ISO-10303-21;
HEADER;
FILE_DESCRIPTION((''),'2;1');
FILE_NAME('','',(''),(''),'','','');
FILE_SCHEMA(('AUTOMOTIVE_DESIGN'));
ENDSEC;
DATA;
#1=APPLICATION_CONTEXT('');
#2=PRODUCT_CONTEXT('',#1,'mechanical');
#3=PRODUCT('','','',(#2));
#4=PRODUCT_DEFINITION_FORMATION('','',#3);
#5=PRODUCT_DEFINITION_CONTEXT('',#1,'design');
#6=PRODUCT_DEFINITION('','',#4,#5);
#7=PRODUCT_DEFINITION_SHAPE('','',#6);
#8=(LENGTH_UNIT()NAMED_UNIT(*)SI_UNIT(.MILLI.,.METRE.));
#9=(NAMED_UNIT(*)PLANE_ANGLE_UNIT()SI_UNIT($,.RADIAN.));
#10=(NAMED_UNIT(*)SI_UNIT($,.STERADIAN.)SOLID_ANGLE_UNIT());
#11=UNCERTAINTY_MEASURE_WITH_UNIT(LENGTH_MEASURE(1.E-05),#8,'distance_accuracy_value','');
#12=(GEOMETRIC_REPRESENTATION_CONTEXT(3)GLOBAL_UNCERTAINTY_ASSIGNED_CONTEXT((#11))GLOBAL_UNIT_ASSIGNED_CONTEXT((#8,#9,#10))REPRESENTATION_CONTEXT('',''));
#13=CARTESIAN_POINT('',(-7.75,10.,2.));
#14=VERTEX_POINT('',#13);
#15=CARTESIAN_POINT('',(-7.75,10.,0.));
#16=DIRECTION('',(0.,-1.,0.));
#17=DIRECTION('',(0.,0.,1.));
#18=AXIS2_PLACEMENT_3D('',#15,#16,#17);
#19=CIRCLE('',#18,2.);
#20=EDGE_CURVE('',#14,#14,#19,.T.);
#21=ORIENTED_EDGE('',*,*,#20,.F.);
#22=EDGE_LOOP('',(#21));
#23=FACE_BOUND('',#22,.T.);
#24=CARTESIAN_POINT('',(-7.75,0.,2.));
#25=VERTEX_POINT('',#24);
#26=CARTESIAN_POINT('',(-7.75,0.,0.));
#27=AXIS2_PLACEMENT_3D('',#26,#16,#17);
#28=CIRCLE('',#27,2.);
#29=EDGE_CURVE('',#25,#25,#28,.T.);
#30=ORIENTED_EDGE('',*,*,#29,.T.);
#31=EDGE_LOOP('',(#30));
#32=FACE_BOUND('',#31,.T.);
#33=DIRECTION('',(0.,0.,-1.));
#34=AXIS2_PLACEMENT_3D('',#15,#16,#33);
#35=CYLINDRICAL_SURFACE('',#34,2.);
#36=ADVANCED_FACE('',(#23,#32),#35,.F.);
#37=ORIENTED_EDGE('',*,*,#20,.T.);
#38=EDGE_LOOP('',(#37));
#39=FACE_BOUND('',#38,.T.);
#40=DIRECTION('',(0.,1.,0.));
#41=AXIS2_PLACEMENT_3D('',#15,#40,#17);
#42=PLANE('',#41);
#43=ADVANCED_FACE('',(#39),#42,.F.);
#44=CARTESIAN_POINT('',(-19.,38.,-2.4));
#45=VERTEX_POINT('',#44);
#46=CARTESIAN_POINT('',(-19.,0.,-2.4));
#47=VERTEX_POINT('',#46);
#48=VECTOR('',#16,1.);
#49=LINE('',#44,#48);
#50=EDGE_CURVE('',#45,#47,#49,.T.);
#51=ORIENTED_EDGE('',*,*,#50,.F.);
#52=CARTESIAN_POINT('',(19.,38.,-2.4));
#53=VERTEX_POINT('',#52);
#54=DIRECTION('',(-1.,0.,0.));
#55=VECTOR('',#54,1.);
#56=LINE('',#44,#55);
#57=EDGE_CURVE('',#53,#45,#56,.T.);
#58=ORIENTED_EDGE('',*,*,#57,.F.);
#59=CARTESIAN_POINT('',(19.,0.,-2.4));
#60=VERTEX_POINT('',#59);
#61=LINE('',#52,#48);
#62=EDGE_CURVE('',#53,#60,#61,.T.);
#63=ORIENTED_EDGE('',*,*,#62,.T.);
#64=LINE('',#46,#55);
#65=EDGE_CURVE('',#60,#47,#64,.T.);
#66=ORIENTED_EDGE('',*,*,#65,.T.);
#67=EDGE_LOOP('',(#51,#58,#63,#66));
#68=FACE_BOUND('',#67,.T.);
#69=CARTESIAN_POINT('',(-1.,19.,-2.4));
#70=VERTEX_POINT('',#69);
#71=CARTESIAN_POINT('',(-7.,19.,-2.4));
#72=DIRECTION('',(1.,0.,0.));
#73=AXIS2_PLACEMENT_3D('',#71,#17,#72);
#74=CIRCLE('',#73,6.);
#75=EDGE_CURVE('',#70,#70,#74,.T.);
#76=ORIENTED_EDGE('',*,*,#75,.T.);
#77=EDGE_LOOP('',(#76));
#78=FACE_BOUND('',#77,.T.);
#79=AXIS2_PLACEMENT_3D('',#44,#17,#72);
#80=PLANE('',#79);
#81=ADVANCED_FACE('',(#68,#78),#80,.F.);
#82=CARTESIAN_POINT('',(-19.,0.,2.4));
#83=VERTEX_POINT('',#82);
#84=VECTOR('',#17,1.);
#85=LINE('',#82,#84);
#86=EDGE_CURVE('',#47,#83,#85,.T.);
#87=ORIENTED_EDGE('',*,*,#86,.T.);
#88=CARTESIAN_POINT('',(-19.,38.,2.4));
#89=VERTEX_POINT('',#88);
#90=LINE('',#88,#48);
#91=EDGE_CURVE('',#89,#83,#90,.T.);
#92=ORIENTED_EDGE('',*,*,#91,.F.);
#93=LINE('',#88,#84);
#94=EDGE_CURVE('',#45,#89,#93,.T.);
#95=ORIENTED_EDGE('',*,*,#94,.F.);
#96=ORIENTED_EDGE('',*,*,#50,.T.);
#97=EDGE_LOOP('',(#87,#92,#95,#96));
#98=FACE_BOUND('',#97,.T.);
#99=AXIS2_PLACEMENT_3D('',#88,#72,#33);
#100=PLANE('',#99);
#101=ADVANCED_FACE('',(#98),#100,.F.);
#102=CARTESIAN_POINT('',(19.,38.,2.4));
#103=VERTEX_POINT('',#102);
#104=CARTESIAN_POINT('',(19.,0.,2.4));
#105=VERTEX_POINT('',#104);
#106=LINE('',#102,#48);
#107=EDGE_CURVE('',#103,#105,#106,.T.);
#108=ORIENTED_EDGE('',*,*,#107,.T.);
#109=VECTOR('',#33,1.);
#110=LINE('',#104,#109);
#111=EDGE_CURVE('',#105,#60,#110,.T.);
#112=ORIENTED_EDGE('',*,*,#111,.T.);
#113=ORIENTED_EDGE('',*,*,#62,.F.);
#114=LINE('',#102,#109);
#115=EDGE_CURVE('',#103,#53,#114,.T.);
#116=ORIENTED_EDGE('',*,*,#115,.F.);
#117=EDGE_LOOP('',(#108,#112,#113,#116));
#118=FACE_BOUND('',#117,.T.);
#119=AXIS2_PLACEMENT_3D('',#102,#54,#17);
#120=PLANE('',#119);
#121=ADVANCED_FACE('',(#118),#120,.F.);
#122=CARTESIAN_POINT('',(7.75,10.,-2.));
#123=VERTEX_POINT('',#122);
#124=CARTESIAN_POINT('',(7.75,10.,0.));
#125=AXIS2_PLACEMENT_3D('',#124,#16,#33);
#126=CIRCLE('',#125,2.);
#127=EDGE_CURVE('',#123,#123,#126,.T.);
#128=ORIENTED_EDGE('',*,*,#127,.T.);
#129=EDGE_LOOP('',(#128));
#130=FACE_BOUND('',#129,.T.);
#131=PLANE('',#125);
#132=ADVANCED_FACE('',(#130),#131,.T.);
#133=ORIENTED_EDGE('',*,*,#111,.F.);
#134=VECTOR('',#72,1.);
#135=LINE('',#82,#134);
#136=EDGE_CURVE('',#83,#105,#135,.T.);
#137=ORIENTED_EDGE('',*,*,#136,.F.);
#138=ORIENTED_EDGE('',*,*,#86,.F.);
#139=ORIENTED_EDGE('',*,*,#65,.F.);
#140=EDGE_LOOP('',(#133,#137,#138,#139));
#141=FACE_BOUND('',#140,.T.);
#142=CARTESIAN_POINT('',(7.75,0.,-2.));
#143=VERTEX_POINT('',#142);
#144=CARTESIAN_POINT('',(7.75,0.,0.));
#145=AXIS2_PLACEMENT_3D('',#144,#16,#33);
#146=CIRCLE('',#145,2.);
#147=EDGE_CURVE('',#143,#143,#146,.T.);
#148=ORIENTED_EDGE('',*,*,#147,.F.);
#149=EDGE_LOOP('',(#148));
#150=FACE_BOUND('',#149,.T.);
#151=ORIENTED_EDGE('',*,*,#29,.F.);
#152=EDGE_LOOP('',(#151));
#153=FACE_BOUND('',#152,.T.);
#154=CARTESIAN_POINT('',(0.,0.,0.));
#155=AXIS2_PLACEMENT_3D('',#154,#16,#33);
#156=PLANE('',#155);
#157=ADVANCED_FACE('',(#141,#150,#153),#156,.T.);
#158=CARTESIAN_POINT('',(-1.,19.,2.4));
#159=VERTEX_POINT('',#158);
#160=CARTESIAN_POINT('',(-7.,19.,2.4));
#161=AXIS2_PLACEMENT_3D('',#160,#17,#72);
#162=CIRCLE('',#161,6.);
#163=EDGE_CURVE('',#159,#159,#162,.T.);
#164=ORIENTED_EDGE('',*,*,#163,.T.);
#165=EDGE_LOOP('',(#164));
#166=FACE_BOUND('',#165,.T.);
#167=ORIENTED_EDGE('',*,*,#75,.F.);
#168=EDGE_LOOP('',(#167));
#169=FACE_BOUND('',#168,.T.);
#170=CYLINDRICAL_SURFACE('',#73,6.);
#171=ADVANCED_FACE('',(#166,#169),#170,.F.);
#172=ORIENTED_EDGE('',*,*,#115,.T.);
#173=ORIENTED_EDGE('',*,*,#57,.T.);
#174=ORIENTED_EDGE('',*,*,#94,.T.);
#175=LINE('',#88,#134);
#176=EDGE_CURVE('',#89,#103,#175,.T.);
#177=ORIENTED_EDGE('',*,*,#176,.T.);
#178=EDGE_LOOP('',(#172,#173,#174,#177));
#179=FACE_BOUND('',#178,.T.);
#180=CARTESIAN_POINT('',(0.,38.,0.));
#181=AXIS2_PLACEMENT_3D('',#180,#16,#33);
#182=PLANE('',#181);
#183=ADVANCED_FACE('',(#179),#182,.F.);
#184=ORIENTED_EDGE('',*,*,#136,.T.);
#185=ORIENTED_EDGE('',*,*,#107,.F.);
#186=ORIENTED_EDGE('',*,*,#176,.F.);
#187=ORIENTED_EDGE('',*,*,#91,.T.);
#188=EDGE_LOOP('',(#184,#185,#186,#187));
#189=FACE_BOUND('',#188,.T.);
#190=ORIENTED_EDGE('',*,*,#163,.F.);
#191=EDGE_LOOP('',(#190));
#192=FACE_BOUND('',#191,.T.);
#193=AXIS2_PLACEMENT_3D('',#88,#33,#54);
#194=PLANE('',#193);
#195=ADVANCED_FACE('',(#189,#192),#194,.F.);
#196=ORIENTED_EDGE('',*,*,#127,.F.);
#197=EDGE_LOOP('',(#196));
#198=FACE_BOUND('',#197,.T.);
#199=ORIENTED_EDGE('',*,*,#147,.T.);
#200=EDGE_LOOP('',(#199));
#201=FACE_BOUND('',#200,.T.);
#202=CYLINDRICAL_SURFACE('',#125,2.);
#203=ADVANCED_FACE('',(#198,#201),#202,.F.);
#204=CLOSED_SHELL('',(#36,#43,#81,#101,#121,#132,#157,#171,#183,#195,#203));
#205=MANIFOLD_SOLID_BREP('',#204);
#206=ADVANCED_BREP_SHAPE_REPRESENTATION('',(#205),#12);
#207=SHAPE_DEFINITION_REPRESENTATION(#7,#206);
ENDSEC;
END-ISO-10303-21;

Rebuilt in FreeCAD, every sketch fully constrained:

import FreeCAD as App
import Part
import Sketcher

V = App.Vector
Q = App.Units.Quantity


def add_polygon(sketch, points):
    """Adds a closed chain of lines whose ends are joined by coincident constraints."""
    first, n = sketch.GeometryCount, len(points)
    for a, b in zip(points, points[1:] + points[:1]):
        sketch.addGeometry(Part.LineSegment(App.Vector(*a, 0), App.Vector(*b, 0)), False)
    for i in range(n):
        sketch.addConstraint(Sketcher.Constraint("Coincident", first + i, 2, first + (i + 1) % n, 1))

doc = App.newDocument("Part")
body = doc.addObject("PartDesign::Body", "Body")

# Sketch on XZ plane
sketch1 = body.newObject("Sketcher::SketchObject", "Sketch")
sketch1.AttachmentSupport = (doc.getObject("XZ_Plane"), [""])
sketch1.MapMode = "FlatFace"
add_polygon(sketch1, [(-19, -2.4), (-19, 2.4), (19, 2.4), (19, -2.4)])  # lines 0-3
sketch1.addConstraint([
    Sketcher.Constraint("Vertical", 0),
    Sketcher.Constraint("Horizontal", 1),
    Sketcher.Constraint("Vertical", 2),
    Sketcher.Constraint("Horizontal", 3),
    Sketcher.Constraint("Symmetric", 0, 2, 2, 2, -1, 1),
    Sketcher.Constraint("DistanceX", 1, 1, 1, 2, Q("38 mm")),
    Sketcher.Constraint("DistanceY", 0, 1, 0, 2, Q("4.8 mm")),
])
pad1 = body.newObject("PartDesign::Pad", "Pad")
pad1.Profile = sketch1
pad1.Length = 38
pad1.Reversed = True

# Sketch on XZ plane
sketch2 = body.newObject("Sketcher::SketchObject", "Sketch001")
sketch2.AttachmentSupport = (doc.getObject("XZ_Plane"), [""])
sketch2.MapMode = "FlatFace"
sketch2.addGeometry([
    Part.Circle(V(7.75, 0, 0), V(0, 0, 1), 2),
    Part.Circle(V(-7.75, 0, 0), V(0, 0, 1), 2),
], False)
sketch2.addConstraint([
    Sketcher.Constraint("Equal", 0, 1),
    Sketcher.Constraint("Symmetric", 0, 3, 1, 3, -1, 1),
    Sketcher.Constraint("PointOnObject", 0, 3, -1),
    Sketcher.Constraint("Diameter", 0, Q("4 mm")),
    Sketcher.Constraint("DistanceX", 1, 3, 0, 3, Q("15.5 mm")),
])
pocket1 = body.newObject("PartDesign::Pocket", "Pocket")
pocket1.Profile = sketch2
pocket1.Length = 10

# Sketch on XY plane
sketch3 = body.newObject("Sketcher::SketchObject", "Sketch002")
sketch3.AttachmentSupport = (doc.getObject("XY_Plane"), [""])
sketch3.MapMode = "FlatFace"
sketch3.AttachmentOffset = App.Placement(V(0, 0, 2.4), App.Rotation())
sketch3.addGeometry(Part.Circle(V(-7, 19, 0), V(0, 0, 1), 6), False)
sketch3.addConstraint([
    Sketcher.Constraint("Diameter", 0, Q("12 mm")),
    Sketcher.Constraint("DistanceX", 0, 3, -1, 1, Q("7 mm")),
    Sketcher.Constraint("DistanceY", -1, 1, 0, 3, Q("19 mm")),
])
pocket2 = body.newObject("PartDesign::Pocket", "Pocket001")
pocket2.Profile = sketch3
pocket2.Type = "ThroughAll"

doc.recompute()
